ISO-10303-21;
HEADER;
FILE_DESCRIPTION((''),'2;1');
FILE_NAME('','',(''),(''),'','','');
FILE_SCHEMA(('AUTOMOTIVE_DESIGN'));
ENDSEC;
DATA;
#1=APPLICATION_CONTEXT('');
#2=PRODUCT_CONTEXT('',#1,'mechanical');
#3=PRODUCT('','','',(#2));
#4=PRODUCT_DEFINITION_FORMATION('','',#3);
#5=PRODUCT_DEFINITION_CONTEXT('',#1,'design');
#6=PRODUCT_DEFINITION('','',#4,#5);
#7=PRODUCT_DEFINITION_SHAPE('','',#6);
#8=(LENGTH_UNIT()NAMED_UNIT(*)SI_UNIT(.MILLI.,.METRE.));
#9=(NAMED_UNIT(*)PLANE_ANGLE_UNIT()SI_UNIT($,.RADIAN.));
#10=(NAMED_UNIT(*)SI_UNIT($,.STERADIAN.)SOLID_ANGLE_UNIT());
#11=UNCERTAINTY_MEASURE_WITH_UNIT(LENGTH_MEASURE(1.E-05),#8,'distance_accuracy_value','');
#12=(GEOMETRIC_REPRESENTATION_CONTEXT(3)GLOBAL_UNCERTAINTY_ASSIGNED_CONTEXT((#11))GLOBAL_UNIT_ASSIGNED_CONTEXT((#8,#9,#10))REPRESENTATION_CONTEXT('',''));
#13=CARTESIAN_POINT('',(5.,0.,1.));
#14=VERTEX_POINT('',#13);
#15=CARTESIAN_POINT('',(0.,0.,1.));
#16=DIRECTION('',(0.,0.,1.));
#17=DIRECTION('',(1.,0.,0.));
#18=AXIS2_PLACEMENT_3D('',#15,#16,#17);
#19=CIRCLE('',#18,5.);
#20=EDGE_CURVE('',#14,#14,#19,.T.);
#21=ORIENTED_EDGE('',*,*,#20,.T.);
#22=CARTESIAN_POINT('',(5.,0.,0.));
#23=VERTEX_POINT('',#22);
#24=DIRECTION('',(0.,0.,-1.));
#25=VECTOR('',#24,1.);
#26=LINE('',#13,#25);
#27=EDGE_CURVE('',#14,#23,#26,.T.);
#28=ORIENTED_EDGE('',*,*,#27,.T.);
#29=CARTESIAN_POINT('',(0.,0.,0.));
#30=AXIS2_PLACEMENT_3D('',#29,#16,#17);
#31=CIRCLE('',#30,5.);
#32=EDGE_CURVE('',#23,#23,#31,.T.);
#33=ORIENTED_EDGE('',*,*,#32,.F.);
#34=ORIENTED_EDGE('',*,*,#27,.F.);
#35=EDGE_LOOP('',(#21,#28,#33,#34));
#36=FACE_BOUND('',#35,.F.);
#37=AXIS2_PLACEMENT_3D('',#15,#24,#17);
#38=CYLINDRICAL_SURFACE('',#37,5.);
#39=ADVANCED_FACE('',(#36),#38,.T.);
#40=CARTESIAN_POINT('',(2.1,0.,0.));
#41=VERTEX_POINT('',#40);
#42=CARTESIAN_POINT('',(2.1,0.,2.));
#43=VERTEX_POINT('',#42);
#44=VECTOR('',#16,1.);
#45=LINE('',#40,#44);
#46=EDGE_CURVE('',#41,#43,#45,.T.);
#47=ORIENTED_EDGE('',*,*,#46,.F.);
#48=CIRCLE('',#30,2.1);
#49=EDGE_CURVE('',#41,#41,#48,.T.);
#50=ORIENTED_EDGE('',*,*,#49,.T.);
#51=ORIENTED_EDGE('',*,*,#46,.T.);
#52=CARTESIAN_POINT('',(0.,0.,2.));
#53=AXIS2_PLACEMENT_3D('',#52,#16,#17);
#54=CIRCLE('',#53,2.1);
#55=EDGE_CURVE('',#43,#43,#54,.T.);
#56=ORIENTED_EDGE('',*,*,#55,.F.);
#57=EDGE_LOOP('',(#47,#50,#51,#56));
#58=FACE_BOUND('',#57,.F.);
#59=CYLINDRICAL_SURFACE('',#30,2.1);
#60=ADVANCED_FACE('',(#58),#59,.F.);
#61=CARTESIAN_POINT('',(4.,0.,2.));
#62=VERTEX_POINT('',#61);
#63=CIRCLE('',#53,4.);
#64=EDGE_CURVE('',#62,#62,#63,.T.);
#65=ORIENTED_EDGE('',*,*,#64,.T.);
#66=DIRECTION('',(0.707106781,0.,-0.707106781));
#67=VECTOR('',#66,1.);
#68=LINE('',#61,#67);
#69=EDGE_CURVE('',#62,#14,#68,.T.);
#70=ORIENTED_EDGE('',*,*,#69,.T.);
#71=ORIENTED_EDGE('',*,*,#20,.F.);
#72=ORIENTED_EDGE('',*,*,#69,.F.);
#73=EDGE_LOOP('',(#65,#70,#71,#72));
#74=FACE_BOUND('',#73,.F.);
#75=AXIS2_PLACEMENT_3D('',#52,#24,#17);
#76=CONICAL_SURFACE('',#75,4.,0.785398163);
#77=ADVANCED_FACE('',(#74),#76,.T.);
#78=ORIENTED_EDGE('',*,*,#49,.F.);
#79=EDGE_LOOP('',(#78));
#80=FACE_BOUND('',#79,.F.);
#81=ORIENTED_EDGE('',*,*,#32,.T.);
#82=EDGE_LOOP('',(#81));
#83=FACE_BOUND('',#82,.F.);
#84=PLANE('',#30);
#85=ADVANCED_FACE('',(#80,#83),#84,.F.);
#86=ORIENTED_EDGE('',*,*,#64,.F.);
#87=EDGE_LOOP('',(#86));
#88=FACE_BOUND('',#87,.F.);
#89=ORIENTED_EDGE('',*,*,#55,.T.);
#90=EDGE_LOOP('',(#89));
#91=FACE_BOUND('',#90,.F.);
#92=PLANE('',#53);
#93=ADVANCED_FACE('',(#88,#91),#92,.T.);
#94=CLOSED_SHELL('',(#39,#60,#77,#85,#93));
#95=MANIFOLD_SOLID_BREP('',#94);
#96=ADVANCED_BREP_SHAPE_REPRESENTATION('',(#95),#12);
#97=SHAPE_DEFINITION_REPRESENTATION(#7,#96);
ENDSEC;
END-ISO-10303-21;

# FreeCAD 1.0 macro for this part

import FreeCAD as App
import Part
import Sketcher
Q = App.Units.Quantity

doc = App.newDocument("Part")
params = doc.addObject("Spreadsheet::Sheet", "Params")
for row, (alias, value) in enumerate([
    ("sketch1_height", "2 mm"),
    ("sketch1_height2", "1 mm"),
    ("sketch1_width", "2.9 mm"),
    ("revolution_angle", "360 deg"),
], start=1):
    params.set(f"A{row}", alias)
    params.set(f"B{row}", "=" + value)
    params.setAlias(f"B{row}", alias)

body = doc.addObject("PartDesign::Body", "Body")

# Sketch on XZ plane
sketch1 = doc.addObject("Sketcher::SketchObject", "Sketch")
body.addObject(sketch1)
sketch1.AttachmentSupport = (doc.XZ_Plane, [""])
sketch1.MapMode = "FlatFace"
sketch1.addGeometry([
    Part.LineSegment(App.Vector(2.1, 2, 0), App.Vector(2.1, 0, 0)),  # 0
    Part.LineSegment(App.Vector(2.1, 0, 0), App.Vector(5, 0, 0)),  # 1
    Part.LineSegment(App.Vector(5, 0, 0), App.Vector(5, 1, 0)),  # 2
    Part.LineSegment(App.Vector(5, 1, 0), App.Vector(4, 2, 0)),  # 3
    Part.LineSegment(App.Vector(4, 2, 0), App.Vector(2.1, 2, 0)),  # 4
], False)
sketch1.addConstraint([
    Sketcher.Constraint("Coincident", 0, 2, 1, 1),
    Sketcher.Constraint("Coincident", 1, 2, 2, 1),
    Sketcher.Constraint("Coincident", 2, 2, 3, 1),
    Sketcher.Constraint("Coincident", 3, 2, 4, 1),
    Sketcher.Constraint("Coincident", 4, 2, 0, 1),
    Sketcher.Constraint("Vertical", 0),
    Sketcher.Constraint("Horizontal", 1),
    Sketcher.Constraint("Vertical", 2),
    Sketcher.Constraint("Horizontal", 4),
    Sketcher.Constraint("PointOnObject", 0, 2, -1),
    Sketcher.Constraint("DistanceY", 0, 2, 0, 1, Q("2 mm")),
    Sketcher.Constraint("DistanceY", 2, 1, 2, 2, Q("1 mm")),
    Sketcher.Constraint("Angle", 3, Q("135 deg")),
    Sketcher.Constraint("DistanceX", 1, 1, 1, 2, Q("2.9 mm")),
    Sketcher.Constraint("DistanceX", -1, 1, 1, 2, Q("5 mm")),
])
sketch1.setExpression("Constraints[10]", "Params.sketch1_height")
sketch1.setExpression("Constraints[11]", "Params.sketch1_height2")
sketch1.setExpression("Constraints[13]", "Params.sketch1_width")
revolution = doc.addObject("PartDesign::Revolution", "Revolution")
body.addObject(revolution)
revolution.Profile = sketch1
revolution.ReferenceAxis = (sketch1, ["V_Axis"])
revolution.setExpression("Angle", "Params.revolution_angle")

doc.recompute()
